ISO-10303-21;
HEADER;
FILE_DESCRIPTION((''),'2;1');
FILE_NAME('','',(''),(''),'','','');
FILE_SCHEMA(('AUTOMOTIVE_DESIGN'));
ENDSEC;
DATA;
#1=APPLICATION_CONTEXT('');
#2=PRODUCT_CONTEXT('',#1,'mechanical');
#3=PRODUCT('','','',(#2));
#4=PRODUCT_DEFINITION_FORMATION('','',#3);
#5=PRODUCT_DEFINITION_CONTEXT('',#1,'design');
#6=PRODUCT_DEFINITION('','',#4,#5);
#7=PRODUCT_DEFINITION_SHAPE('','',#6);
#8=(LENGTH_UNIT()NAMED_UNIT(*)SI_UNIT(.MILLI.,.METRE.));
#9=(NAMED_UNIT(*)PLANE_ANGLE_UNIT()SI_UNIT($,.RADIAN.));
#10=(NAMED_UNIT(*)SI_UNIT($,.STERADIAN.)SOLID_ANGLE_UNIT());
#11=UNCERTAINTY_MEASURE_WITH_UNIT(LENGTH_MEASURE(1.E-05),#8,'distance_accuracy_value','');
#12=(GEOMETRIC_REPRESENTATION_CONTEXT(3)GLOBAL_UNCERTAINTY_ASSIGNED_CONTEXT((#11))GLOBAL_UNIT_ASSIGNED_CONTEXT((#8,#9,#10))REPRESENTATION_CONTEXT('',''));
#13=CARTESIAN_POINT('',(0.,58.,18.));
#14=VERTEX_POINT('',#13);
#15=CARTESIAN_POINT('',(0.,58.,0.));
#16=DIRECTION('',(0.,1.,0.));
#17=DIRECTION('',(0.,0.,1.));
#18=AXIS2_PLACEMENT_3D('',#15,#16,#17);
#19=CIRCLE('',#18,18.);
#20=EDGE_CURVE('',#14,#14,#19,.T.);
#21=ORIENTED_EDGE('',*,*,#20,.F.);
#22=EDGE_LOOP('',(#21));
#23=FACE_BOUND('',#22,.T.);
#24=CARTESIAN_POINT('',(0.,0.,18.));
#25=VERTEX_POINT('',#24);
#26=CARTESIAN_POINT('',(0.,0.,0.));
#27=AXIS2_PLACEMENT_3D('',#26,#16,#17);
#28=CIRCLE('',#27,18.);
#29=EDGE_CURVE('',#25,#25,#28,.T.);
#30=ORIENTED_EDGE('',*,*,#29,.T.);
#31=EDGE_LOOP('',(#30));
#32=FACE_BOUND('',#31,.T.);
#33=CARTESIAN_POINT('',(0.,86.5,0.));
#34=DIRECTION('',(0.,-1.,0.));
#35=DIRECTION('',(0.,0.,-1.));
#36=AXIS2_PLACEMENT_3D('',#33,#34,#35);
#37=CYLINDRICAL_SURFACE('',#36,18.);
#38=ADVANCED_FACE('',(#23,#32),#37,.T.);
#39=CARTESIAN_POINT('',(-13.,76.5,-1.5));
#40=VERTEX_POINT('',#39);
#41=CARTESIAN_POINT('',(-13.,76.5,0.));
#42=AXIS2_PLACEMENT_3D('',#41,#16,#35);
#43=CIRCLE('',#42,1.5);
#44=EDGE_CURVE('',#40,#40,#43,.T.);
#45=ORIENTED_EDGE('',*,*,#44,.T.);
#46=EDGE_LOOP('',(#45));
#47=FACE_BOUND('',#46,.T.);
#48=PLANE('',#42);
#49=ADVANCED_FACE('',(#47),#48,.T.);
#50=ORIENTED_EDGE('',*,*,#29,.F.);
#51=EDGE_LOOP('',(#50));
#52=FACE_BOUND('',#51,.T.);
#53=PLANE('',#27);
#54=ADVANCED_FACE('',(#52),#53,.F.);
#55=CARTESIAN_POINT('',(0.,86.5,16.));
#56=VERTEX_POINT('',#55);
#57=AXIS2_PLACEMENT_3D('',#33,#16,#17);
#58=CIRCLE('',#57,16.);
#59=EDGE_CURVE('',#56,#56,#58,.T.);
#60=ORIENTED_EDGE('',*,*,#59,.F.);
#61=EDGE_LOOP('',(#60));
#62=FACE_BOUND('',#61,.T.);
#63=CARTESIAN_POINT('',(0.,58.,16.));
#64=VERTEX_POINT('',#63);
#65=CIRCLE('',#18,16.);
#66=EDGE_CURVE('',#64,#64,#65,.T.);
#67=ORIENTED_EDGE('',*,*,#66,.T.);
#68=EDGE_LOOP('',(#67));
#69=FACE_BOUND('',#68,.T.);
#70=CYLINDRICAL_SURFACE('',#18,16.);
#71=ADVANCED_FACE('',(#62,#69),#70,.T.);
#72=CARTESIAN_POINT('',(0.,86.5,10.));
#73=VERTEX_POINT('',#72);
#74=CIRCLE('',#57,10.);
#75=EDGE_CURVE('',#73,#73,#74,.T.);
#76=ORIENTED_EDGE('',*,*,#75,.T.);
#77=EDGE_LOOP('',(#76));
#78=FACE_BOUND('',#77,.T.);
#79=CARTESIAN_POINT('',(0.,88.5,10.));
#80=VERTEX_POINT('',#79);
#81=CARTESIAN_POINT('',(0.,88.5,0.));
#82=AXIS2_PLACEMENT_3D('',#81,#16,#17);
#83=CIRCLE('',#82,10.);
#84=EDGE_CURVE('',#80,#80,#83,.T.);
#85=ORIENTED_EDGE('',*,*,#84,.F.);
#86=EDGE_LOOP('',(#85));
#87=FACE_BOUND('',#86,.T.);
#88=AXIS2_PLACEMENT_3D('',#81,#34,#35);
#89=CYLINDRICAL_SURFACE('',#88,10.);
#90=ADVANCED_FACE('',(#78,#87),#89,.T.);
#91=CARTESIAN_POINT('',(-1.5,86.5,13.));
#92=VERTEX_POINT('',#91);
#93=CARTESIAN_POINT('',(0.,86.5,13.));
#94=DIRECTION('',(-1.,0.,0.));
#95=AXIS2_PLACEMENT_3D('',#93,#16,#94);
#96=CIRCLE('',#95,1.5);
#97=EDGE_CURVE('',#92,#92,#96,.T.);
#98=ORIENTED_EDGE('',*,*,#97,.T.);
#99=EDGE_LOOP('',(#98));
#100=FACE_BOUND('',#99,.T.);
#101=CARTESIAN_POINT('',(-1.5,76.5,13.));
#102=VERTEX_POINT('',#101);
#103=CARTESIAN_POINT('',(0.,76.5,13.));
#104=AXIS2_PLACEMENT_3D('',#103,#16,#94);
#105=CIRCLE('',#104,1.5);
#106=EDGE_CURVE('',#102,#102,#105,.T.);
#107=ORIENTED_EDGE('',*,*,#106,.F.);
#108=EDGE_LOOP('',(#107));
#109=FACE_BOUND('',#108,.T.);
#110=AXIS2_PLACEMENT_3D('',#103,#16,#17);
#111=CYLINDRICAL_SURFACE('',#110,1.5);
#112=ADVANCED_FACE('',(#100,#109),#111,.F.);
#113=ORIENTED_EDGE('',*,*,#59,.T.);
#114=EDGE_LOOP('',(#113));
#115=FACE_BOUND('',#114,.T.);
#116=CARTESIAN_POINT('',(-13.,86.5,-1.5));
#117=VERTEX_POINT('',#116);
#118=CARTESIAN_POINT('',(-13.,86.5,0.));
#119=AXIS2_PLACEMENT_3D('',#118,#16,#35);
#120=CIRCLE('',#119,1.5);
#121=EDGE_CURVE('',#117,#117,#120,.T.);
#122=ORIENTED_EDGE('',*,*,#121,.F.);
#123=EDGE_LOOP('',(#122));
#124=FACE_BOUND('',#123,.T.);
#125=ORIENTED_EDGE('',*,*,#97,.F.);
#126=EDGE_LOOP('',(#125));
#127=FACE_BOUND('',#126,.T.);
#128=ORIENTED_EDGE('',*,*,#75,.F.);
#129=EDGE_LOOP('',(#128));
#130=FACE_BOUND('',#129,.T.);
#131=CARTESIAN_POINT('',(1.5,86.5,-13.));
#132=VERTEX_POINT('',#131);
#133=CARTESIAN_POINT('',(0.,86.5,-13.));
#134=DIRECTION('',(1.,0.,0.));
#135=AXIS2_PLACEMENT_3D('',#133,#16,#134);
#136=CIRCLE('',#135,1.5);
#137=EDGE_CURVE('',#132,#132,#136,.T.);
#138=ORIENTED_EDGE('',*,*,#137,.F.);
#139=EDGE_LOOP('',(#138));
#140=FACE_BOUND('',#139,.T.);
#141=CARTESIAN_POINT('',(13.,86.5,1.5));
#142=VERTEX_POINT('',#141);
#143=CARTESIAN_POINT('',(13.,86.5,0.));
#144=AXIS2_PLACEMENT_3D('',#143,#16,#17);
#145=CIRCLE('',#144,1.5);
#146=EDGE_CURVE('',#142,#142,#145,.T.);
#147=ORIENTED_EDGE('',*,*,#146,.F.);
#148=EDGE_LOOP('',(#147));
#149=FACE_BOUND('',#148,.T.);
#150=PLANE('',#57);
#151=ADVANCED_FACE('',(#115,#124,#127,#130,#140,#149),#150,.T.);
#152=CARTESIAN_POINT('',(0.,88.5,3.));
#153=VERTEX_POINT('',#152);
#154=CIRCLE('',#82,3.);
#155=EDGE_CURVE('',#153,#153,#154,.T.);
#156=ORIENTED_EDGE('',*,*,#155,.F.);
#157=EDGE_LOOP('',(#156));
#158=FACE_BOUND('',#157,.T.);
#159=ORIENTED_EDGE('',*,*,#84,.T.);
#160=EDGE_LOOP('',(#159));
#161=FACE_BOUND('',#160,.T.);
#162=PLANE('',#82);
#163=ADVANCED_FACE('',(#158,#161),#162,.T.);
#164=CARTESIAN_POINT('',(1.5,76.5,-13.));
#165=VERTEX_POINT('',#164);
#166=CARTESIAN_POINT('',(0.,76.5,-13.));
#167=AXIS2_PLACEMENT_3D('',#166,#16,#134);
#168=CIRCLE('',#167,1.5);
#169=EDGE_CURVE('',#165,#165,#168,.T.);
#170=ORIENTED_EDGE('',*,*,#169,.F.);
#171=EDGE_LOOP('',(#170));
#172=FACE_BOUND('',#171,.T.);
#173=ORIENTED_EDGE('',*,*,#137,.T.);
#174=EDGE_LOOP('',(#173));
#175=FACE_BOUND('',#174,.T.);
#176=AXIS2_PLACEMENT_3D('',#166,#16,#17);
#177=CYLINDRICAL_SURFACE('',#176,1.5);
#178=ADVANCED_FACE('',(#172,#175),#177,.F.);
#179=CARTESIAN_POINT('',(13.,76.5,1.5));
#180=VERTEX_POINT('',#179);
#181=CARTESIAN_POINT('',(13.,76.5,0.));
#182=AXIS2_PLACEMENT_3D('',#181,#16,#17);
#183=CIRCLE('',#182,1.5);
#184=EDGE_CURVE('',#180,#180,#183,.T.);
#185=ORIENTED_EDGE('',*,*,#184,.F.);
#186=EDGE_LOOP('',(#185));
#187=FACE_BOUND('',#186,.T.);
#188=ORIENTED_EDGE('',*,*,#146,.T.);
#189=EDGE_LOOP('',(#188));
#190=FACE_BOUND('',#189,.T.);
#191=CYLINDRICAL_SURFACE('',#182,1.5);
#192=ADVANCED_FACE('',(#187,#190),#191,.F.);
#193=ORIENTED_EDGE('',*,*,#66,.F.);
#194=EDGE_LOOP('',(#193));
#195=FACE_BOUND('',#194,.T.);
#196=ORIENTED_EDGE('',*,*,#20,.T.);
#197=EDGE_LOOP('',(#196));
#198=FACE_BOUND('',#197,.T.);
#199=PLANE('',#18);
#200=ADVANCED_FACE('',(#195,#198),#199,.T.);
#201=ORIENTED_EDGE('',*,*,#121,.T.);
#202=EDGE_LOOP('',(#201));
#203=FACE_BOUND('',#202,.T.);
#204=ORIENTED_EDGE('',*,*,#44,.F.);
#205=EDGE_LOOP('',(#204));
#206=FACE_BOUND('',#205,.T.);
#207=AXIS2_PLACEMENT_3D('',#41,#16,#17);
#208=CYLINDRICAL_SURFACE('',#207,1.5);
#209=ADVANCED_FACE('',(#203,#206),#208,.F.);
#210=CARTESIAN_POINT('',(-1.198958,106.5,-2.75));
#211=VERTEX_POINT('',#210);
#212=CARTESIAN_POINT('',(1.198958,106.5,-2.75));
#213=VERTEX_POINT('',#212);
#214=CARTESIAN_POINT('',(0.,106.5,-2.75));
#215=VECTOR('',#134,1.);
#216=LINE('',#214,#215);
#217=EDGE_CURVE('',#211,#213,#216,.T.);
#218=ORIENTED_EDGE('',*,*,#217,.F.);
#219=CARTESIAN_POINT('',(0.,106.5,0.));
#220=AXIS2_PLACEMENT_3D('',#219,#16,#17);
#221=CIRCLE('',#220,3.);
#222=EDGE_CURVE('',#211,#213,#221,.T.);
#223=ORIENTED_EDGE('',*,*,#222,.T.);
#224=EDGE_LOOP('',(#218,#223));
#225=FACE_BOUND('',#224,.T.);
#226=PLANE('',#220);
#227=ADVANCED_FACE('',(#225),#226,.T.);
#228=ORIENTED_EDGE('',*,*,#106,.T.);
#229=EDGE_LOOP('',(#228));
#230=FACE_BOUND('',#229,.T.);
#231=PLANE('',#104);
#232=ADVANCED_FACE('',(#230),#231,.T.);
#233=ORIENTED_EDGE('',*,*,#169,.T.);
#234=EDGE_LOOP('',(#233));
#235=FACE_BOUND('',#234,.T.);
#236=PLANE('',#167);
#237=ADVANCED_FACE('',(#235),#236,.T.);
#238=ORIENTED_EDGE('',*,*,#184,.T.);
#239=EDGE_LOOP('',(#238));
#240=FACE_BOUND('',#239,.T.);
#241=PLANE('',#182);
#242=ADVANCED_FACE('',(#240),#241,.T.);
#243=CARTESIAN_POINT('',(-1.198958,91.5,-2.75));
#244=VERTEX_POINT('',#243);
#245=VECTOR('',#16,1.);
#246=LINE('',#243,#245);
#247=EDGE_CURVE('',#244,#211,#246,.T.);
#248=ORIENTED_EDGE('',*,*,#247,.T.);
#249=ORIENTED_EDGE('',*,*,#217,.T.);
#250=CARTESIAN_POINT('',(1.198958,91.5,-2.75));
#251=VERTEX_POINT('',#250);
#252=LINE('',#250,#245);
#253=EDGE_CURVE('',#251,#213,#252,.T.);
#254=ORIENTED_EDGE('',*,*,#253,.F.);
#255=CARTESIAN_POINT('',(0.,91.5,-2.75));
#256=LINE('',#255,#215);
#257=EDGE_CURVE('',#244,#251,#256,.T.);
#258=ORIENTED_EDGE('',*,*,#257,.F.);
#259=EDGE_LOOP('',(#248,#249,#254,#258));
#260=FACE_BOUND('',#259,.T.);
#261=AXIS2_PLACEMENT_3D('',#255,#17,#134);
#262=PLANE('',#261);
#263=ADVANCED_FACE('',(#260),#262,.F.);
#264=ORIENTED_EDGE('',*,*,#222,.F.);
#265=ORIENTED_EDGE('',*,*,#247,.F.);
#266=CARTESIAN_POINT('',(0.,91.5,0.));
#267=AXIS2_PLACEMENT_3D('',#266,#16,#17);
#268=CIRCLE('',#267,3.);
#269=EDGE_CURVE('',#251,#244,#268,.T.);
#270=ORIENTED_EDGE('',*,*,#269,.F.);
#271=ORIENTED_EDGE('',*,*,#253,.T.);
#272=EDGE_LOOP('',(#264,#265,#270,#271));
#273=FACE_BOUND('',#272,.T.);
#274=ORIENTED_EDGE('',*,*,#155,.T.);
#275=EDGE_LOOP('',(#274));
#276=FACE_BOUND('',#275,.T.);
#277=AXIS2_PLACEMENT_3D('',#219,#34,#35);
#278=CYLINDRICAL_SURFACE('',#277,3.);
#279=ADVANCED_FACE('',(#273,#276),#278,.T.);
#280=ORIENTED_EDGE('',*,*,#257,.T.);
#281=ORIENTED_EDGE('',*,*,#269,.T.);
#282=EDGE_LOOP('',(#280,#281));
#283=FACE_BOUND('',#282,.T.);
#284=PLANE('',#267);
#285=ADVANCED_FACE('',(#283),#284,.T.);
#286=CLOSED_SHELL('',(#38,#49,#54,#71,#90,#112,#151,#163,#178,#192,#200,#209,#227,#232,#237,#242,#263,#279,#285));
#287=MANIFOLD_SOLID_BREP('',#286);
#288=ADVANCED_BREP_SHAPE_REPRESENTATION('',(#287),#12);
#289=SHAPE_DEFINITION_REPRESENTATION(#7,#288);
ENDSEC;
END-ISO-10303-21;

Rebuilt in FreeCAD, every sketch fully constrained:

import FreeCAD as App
import Part
import Sketcher
from FreeCAD import Vector
Q = App.Units.Quantity


def add_polygon(sketch, points):
    """Adds a closed chain of lines whose ends are joined by coincident constraints."""
    first, n = sketch.GeometryCount, len(points)
    for a, b in zip(points, points[1:] + points[:1]):
        sketch.addGeometry(Part.LineSegment(App.Vector(*a, 0), App.Vector(*b, 0)), False)
    for i in range(n):
        sketch.addConstraint(Sketcher.Constraint("Coincident", first + i, 2, first + (i + 1) % n, 1))

doc = App.newDocument("Part")
body = doc.addObject("PartDesign::Body", "Body")

# Sketch on XZ plane
sketch1 = doc.addObject("Sketcher::SketchObject", "Sketch")
body.addObject(sketch1)
sketch1.AttachmentSupport = (doc.XZ_Plane, [""])
sketch1.MapMode = "FlatFace"
sketch1.addGeometry(Part.Circle(Vector(0, 0, 0), Vector(0, 0, 1), 18), False)
sketch1.addConstraint(Sketcher.Constraint("Coincident", 0, 3, -1, 1))
sketch1.addConstraint(Sketcher.Constraint("Diameter", 0, Q("36 mm")))
pad1 = doc.addObject("PartDesign::Pad", "Pad")
body.addObject(pad1)
pad1.Profile = sketch1
pad1.Length = 86.5
pad1.Reversed = True

# Sketch on XZ plane
sketch2 = doc.addObject("Sketcher::SketchObject", "Sketch001")
body.addObject(sketch2)
sketch2.AttachmentSupport = (doc.XZ_Plane, [""])
sketch2.MapMode = "FlatFace"
sketch2.AttachmentOffset = App.Placement(Vector(0, 0, -86.5), App.Rotation())
sketch2.addGeometry(Part.Circle(Vector(0, 0, 0), Vector(0, 0, 1), 10), False)
sketch2.addConstraint(Sketcher.Constraint("Coincident", 0, 3, -1, 1))
sketch2.addConstraint(Sketcher.Constraint("Diameter", 0, Q("20 mm")))
pad2 = doc.addObject("PartDesign::Pad", "Pad001")
body.addObject(pad2)
pad2.Profile = sketch2
pad2.Length = 2
pad2.Reversed = True

# Sketch on XZ plane
sketch3 = doc.addObject("Sketcher::SketchObject", "Sketch002")
body.addObject(sketch3)
sketch3.AttachmentSupport = (doc.XZ_Plane, [""])
sketch3.MapMode = "FlatFace"
sketch3.AttachmentOffset = App.Placement(Vector(0, 0, -88.5), App.Rotation())
sketch3.addGeometry(Part.Circle(Vector(0, 0, 0), Vector(0, 0, 1), 3), False)
sketch3.addConstraint(Sketcher.Constraint("Coincident", 0, 3, -1, 1))
sketch3.addConstraint(Sketcher.Constraint("Diameter", 0, Q("6 mm")))
pad3 = doc.addObject("PartDesign::Pad", "Pad002")
body.addObject(pad3)
pad3.Profile = sketch3
pad3.Length = 18
pad3.Reversed = True

# Sketch on XZ plane
sketch4 = doc.addObject("Sketcher::SketchObject", "Sketch003")
body.addObject(sketch4)
sketch4.AttachmentSupport = (doc.XZ_Plane, [""])
sketch4.MapMode = "FlatFace"
sketch4.AttachmentOffset = App.Placement(Vector(0, 0, -106.5), App.Rotation())
add_polygon(sketch4, [(-68, -3), (68, -3), (68, -136), (-68, -136)])  # lines 0-3
sketch4.addConstraint(Sketcher.Constraint("Horizontal", 0))
sketch4.addConstraint(Sketcher.Constraint("Vertical", 1))
sketch4.addConstraint(Sketcher.Constraint("Horizontal", 2))
sketch4.addConstraint(Sketcher.Constraint("Vertical", 3))
sketch4.addConstraint(Sketcher.Constraint("DistanceY", 0, 2, -1, 1, Q("2.75 mm")))
sketch4.addConstraint(Sketcher.Constraint("DistanceY", 1, 2, 1, 1, Q("133.077848 mm")))
sketch4.addConstraint(Sketcher.Constraint("DistanceX", 0, 1, 0, 2, Q("135.475764 mm")))
sketch4.addConstraint(Sketcher.Constraint("DistanceX", -1, 1, 0, 2, Q("67.737882 mm")))
pocket1 = doc.addObject("PartDesign::Pocket", "Pocket")
body.addObject(pocket1)
pocket1.Profile = sketch4
pocket1.Length = 15
pocket1.Reversed = True

# Sketch on XZ plane
sketch5 = doc.addObject("Sketcher::SketchObject", "Sketch004")
body.addObject(sketch5)
sketch5.AttachmentSupport = (doc.XZ_Plane, [""])
sketch5.MapMode = "FlatFace"
sketch5.AttachmentOffset = App.Placement(Vector(0, 0, -86.5), App.Rotation())
sketch5.addGeometry(Part.Circle(Vector(13, 0, 0), Vector(0, 0, 1), 1.5), False)
sketch5.addConstraint(Sketcher.Constraint("PointOnObject", 0, 3, -1))
sketch5.addConstraint(Sketcher.Constraint("Diameter", 0, Q("3 mm")))
sketch5.addConstraint(Sketcher.Constraint("DistanceX", -1, 1, 0, 3, Q("13 mm")))
pocket2 = doc.addObject("PartDesign::Pocket", "Pocket001")
body.addObject(pocket2)
pocket2.Profile = sketch5
pocket2.Length = 10
pocket2.Reversed = True
doc.recompute()

polarpattern = doc.addObject("PartDesign::PolarPattern", "PolarPattern")
body.addObject(polarpattern)
polarpattern.Originals = [pocket2]
polarpattern.Axis = (doc.Y_Axis, [""])
polarpattern.Angle = 360
polarpattern.Occurrences = 4
body.Tip = polarpattern

# Sketch on XZ plane
sketch6 = doc.addObject("Sketcher::SketchObject", "Sketch005")
body.addObject(sketch6)
sketch6.AttachmentSupport = (doc.XZ_Plane, [""])
sketch6.MapMode = "FlatFace"
sketch6.AttachmentOffset = App.Placement(Vector(0, 0, -86.5), App.Rotation())
sketch6.addGeometry(Part.Circle(Vector(0, 0, 0), Vector(0, 0, 1), 18), False)
sketch6.addGeometry(Part.Circle(Vector(0, 0, 0), Vector(0, 0, 1), 16), False)
sketch6.addConstraint(Sketcher.Constraint("Coincident", 0, 3, -1, 1))
sketch6.addConstraint(Sketcher.Constraint("Coincident", 1, 3, -1, 1))
sketch6.addConstraint(Sketcher.Constraint("Diameter", 0, Q("36 mm")))
sketch6.addConstraint(Sketcher.Constraint("Diameter", 1, Q("32 mm")))
pocket3 = doc.addObject("PartDesign::Pocket", "Pocket002")
body.addObject(pocket3)
pocket3.Profile = sketch6
pocket3.Length = 28.5
pocket3.Reversed = True

doc.recompute()
